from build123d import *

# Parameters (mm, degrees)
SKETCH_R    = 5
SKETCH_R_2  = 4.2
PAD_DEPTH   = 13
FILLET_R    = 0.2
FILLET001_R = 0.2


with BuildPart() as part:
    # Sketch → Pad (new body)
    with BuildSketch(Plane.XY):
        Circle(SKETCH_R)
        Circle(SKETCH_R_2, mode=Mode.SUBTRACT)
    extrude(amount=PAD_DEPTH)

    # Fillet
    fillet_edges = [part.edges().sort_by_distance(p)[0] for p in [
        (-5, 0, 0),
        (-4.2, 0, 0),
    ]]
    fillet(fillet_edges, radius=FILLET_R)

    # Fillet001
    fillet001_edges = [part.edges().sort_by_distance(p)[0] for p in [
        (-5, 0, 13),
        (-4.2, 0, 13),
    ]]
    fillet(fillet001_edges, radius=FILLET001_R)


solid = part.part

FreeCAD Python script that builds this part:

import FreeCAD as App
import Part
import Sketcher

V = App.Vector


def edges_at(feature, points):
    """Names of the edges that pass closest to the given points."""
    edges = feature.Shape.Edges
    near = lambda p: min(range(len(edges)), key=lambda i: edges[i].distToShape(Part.Vertex(*p))[0])
    return sorted({f"Edge{near(p) + 1}" for p in points})

doc = App.newDocument("Part")
params = doc.addObject("Spreadsheet::Sheet", "Params")
for row, (alias, value) in enumerate([
    ("sketch1_diameter", "10 mm"),
    ("sketch1_diameter2", "8.4 mm"),
    ("pad1_length", "13 mm"),
    ("fillet_radius", "0.2 mm"),
    ("fillet2_radius", "0.2 mm"),
], start=1):
    params.set(f"A{row}", alias)
    params.set(f"B{row}", "=" + value)
    params.setAlias(f"B{row}", alias)

body = doc.addObject("PartDesign::Body", "Body")

# Sketch on XY plane
sketch1 = body.newObject("Sketcher::SketchObject", "Sketch")
sketch1.AttachmentSupport = (doc.getObject("XY_Plane"), [""])
sketch1.MapMode = "FlatFace"
sketch1.addGeometry([
    Part.Circle(V(0, 0, 0), V(0, 0, 1), 5),
    Part.Circle(V(0, 0, 0), V(0, 0, 1), 4.2),
], False)
sketch1.addConstraint([
    Sketcher.Constraint("Coincident", 0, 3, -1, 1),
    Sketcher.Constraint("Coincident", 1, 3, -1, 1),
    Sketcher.Constraint("Diameter", 0, 10.0),
    Sketcher.Constraint("Diameter", 1, 8.4),
])
sketch1.setExpression("Constraints[2]", "Params.sketch1_diameter")
sketch1.setExpression("Constraints[3]", "Params.sketch1_diameter2")
pad1 = body.newObject("PartDesign::Pad", "Pad")
pad1.Profile = sketch1
pad1.setExpression("Length", "Params.pad1_length")
doc.recompute()

fillet = body.newObject("PartDesign::Fillet", "Fillet")
fillet.Base = (pad1, edges_at(pad1, [(-5, 0, 0), (-4.2, 0, 0)]))
fillet.setExpression("Radius", "Params.fillet_radius")
doc.recompute()

fillet2 = body.newObject("PartDesign::Fillet", "Fillet001")
fillet2.Base = (fillet, edges_at(fillet, [(-5, 0, 13), (-4.2, 0, 13)]))
fillet2.setExpression("Radius", "Params.fillet2_radius")

doc.recompute()
